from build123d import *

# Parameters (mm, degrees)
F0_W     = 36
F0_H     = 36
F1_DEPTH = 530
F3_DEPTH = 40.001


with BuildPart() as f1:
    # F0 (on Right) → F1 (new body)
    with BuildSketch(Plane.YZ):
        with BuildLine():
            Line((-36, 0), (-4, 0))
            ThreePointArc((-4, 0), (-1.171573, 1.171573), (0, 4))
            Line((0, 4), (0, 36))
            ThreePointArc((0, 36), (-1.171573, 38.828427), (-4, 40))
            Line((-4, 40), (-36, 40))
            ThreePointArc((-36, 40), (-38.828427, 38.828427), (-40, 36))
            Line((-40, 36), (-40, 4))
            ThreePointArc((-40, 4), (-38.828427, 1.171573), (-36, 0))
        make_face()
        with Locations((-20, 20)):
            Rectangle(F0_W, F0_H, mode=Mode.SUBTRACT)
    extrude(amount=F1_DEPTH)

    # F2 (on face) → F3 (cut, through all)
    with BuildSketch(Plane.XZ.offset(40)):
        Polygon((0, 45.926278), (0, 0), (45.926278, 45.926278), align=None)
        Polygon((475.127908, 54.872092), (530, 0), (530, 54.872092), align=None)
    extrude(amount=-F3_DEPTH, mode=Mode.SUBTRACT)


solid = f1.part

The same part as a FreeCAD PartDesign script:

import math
import FreeCAD as App
import Part
import Sketcher

doc = App.newDocument("Part")
body = doc.addObject("PartDesign::Body", "Body")

# Sketch on YZ plane
sketch1 = doc.addObject("Sketcher::SketchObject", "Sketch")
body.addObject(sketch1)
sketch1.AttachmentSupport = (doc.YZ_Plane, [""])
sketch1.MapMode = "FlatFace"
sketch1.addGeometry([
    Part.LineSegment(App.Vector(-36, 0, 0), App.Vector(-4, 0, 0)),  # 0
    Part.ArcOfCircle(Part.Circle(App.Vector(-4, 4, 0), App.Vector(0, 0, 1), 4), math.radians(-90), math.radians(0)),  # 1
    Part.LineSegment(App.Vector(0, 4, 0), App.Vector(0, 36, 0)),  # 2
    Part.ArcOfCircle(Part.Circle(App.Vector(-4, 36, 0), App.Vector(0, 0, 1), 4), math.radians(0), math.radians(90)),  # 3
    Part.LineSegment(App.Vector(-4, 40, 0), App.Vector(-36, 40, 0)),  # 4
    Part.ArcOfCircle(Part.Circle(App.Vector(-36, 36, 0), App.Vector(0, 0, 1), 4), math.radians(90), math.radians(180)),  # 5
    Part.LineSegment(App.Vector(-40, 36, 0), App.Vector(-40, 4, 0)),  # 6
    Part.ArcOfCircle(Part.Circle(App.Vector(-36, 4, 0), App.Vector(0, 0, 1), 4), math.radians(-180), math.radians(-90)),  # 7
    Part.LineSegment(App.Vector(-2, 2, 0), App.Vector(-38, 2, 0)),  # 8
    Part.LineSegment(App.Vector(-38, 2, 0), App.Vector(-38, 38, 0)),  # 9
    Part.LineSegment(App.Vector(-38, 38, 0), App.Vector(-2, 38, 0)),  # 10
    Part.LineSegment(App.Vector(-2, 38, 0), App.Vector(-2, 2, 0)),  # 11
], False)
sketch1.addConstraint([
    Sketcher.Constraint("Tangent", 0, 2, 1, 1),
    Sketcher.Constraint("Tangent", 1, 2, 2, 1),
    Sketcher.Constraint("Tangent", 2, 2, 3, 1),
    Sketcher.Constraint("Tangent", 3, 2, 4, 1),
    Sketcher.Constraint("Tangent", 4, 2, 5, 1),
    Sketcher.Constraint("Tangent", 5, 2, 6, 1),
    Sketcher.Constraint("Tangent", 6, 2, 7, 1),
    Sketcher.Constraint("Tangent", 7, 2, 0, 1),
    Sketcher.Constraint("Coincident", 8, 2, 9, 1),
    Sketcher.Constraint("Coincident", 9, 2, 10, 1),
    Sketcher.Constraint("Coincident", 10, 2, 11, 1),
    Sketcher.Constraint("Coincident", 11, 2, 8, 1),
    Sketcher.Constraint("Horizontal", 0),
    Sketcher.Constraint("Vertical", 2),
    Sketcher.Constraint("Horizontal", 4),
    Sketcher.Constraint("Vertical", 6),
    Sketcher.Constraint("Horizontal", 8),
    Sketcher.Constraint("Vertical", 9),
    Sketcher.Constraint("Horizontal", 10),
    Sketcher.Constraint("Vertical", 11),
    Sketcher.Constraint("Equal", 1, 3),
    Sketcher.Constraint("Equal", 3, 5),
    Sketcher.Constraint("Equal", 5, 7),
    Sketcher.Constraint("PointOnObject", 0, 2, -1),
    Sketcher.Constraint("PointOnObject", 1, 2, -2),
    Sketcher.Constraint("Equal", 4, 2),
    Sketcher.Constraint("Equal", 10, 9),
    Sketcher.Constraint("Radius", 1, 4.0),
    Sketcher.Constraint("DistanceX", 0, 1, 0, 2, 32.0),
    Sketcher.Constraint("DistanceX", 8, 2, 8, 1, 36.0),
    Sketcher.Constraint("DistanceX", 8, 2, -1, 1, 38.0),
    Sketcher.Constraint("DistanceY", -1, 1, 8, 2, 2.0),
])
pad1 = doc.addObject("PartDesign::Pad", "Pad")
body.addObject(pad1)
pad1.Profile = sketch1
pad1.Length = 530

# Sketch on XZ plane
sketch2 = doc.addObject("Sketcher::SketchObject", "Sketch001")
body.addObject(sketch2)
sketch2.AttachmentSupport = (doc.XZ_Plane, [""])
sketch2.MapMode = "FlatFace"
sketch2.AttachmentOffset = App.Placement(App.Vector(0, 0, 40), App.Rotation())
sketch2.addGeometry([
    Part.LineSegment(App.Vector(0, 46, 0), App.Vector(0, 0, 0)),  # 0
    Part.LineSegment(App.Vector(0, 0, 0), App.Vector(46, 46, 0)),  # 1
    Part.LineSegment(App.Vector(46, 46, 0), App.Vector(0, 46, 0)),  # 2
    Part.LineSegment(App.Vector(475, 55, 0), App.Vector(530, 0, 0)),  # 3
    Part.LineSegment(App.Vector(530, 0, 0), App.Vector(530, 55, 0)),  # 4
    Part.LineSegment(App.Vector(530, 55, 0), App.Vector(475, 55, 0)),  # 5
], False)
sketch2.addConstraint([
    Sketcher.Constraint("Coincident", 0, 2, 1, 1),
    Sketcher.Constraint("Coincident", 1, 2, 2, 1),
    Sketcher.Constraint("Coincident", 2, 2, 0, 1),
    Sketcher.Constraint("Coincident", 3, 2, 4, 1),
    Sketcher.Constraint("Coincident", 4, 2, 5, 1),
    Sketcher.Constraint("Coincident", 5, 2, 3, 1),
    Sketcher.Constraint("Vertical", 0),
    Sketcher.Constraint("Horizontal", 2),
    Sketcher.Constraint("Vertical", 4),
    Sketcher.Constraint("Horizontal", 5),
    Sketcher.Constraint("Coincident", 0, 2, -1, 1),
    Sketcher.Constraint("PointOnObject", 3, 2, -1),
    Sketcher.Constraint("Perpendicular", 1, 3),
    Sketcher.Constraint("Equal", 2, 0),
    Sketcher.Constraint("DistanceX", -1, 1, 3, 2, 530.0),
    Sketcher.Constraint("DistanceX", 2, 2, 2, 1, 45.926278),
    Sketcher.Constraint("DistanceX", 5, 2, 5, 1, 54.872092),
])
pocket1 = doc.addObject("PartDesign::Pocket", "Pocket")
body.addObject(pocket1)
pocket1.Profile = sketch2
pocket1.Type = "ThroughAll"

doc.recompute()
